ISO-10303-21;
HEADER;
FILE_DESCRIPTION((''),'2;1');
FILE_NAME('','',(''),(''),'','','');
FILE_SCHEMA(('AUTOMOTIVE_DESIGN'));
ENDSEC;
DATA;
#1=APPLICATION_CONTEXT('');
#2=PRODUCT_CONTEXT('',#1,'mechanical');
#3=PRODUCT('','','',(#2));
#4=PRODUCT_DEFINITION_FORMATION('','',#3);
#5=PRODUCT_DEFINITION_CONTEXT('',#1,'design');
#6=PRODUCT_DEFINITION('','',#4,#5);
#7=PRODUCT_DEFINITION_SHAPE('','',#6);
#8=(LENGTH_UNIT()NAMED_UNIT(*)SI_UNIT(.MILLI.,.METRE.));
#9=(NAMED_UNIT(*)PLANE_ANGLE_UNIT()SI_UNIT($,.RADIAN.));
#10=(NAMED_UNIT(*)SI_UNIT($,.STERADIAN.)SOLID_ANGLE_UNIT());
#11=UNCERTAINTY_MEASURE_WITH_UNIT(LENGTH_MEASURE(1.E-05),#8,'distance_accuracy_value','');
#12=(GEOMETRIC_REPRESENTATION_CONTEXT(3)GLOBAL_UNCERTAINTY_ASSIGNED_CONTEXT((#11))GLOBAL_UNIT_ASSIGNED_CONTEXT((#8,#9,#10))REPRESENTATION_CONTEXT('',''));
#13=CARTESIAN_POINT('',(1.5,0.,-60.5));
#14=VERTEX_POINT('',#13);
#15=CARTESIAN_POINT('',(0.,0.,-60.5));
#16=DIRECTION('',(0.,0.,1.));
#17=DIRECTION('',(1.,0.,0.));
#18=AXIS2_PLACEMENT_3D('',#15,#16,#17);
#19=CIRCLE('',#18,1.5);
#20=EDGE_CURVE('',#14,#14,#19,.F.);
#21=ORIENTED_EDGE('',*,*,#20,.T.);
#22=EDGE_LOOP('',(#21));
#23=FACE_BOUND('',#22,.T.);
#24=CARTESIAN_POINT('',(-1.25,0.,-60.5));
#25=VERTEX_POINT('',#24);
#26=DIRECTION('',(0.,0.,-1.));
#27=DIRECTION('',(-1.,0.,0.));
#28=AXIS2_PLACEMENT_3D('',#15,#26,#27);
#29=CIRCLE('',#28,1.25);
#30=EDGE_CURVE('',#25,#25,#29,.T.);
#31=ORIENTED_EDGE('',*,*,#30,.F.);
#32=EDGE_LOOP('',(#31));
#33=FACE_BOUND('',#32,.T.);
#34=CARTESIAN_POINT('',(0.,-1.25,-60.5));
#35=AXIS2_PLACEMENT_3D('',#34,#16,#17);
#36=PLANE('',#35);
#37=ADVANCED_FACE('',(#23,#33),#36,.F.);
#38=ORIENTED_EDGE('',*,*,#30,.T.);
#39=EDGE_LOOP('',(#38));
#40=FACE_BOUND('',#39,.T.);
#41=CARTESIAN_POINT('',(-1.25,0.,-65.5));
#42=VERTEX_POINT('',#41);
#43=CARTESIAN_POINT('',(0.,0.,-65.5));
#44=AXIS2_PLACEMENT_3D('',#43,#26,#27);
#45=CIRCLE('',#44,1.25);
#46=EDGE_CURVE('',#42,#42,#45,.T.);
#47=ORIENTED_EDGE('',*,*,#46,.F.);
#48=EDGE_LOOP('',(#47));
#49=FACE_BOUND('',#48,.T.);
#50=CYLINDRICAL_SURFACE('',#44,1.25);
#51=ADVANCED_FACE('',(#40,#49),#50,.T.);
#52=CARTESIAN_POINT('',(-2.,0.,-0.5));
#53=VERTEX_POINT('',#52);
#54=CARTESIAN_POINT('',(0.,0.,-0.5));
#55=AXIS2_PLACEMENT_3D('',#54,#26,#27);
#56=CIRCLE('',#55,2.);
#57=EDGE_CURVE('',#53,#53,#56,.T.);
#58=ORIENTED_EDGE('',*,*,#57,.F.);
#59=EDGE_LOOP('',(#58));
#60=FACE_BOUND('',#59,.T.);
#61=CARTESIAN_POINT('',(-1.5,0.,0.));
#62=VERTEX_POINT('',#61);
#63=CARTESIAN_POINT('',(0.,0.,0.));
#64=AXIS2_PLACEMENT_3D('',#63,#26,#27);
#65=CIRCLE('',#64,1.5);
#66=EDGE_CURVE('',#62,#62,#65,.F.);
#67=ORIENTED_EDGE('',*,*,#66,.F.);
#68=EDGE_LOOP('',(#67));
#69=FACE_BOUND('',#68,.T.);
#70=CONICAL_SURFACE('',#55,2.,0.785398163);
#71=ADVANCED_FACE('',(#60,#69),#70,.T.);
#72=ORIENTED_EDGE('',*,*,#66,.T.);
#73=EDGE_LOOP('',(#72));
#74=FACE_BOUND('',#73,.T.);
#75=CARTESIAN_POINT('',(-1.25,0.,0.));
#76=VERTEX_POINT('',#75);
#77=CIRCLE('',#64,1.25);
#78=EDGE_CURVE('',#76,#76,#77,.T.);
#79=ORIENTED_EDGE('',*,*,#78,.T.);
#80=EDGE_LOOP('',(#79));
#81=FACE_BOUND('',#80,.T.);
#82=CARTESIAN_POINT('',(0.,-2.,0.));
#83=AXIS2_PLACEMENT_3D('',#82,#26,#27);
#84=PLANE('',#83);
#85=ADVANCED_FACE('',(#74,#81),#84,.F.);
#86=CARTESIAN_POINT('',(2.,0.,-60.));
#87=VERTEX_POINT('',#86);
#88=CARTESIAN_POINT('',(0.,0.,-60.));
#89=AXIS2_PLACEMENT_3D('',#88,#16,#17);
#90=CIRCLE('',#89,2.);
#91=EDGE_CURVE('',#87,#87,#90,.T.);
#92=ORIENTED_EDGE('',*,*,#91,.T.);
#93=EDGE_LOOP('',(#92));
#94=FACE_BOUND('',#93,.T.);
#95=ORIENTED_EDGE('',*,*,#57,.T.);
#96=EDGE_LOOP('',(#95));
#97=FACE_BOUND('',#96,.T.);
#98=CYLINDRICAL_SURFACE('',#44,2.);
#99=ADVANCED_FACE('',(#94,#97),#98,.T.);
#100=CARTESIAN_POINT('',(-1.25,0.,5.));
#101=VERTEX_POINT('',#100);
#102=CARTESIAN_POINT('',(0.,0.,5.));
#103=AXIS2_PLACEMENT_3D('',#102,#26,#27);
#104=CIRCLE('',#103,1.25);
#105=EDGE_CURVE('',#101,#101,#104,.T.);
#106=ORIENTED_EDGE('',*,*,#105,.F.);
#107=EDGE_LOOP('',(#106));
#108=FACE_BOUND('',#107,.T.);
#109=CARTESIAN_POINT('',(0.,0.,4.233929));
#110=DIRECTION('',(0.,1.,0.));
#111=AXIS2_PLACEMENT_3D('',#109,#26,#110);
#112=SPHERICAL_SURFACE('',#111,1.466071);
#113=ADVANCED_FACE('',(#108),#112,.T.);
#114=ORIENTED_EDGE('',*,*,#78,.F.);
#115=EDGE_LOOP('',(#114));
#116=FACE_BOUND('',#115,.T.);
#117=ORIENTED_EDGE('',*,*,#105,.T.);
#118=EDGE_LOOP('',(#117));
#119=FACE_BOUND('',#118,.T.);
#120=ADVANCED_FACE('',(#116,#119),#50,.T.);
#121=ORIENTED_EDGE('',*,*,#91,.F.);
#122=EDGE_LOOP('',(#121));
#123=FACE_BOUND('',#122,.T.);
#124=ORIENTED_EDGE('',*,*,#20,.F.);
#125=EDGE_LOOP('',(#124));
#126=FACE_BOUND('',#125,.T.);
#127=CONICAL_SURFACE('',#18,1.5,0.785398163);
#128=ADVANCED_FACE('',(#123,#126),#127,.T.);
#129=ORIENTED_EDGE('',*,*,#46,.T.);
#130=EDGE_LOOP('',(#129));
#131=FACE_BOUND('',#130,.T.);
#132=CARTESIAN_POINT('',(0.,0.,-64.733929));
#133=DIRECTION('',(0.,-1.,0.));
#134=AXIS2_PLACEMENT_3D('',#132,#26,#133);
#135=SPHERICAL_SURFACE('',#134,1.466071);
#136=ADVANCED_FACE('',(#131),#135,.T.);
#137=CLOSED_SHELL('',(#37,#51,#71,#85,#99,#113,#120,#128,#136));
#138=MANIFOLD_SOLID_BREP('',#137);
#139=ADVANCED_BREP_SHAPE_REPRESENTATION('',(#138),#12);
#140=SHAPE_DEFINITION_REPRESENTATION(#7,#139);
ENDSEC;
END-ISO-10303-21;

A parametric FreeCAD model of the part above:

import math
import FreeCAD as App
import Part
import Sketcher

V = App.Vector
Q = App.Units.Quantity


def edges_at(feature, points):
    """Names of the edges that pass closest to the given points."""
    edges = feature.Shape.Edges
    near = lambda p: min(range(len(edges)), key=lambda i: edges[i].distToShape(Part.Vertex(*p))[0])
    return sorted({f"Edge{near(p) + 1}" for p in points})

doc = App.newDocument("Part")
body = doc.addObject("PartDesign::Body", "Body")

# Sketch on YZ plane
sketch1 = doc.addObject("Sketcher::SketchObject", "Sketch")
body.addObject(sketch1)
sketch1.AttachmentSupport = (doc.YZ_Plane, [""])
sketch1.MapMode = "FlatFace"
sketch1.addGeometry(Part.ArcOfCircle(Part.Circle(V(0, 4.2, 0), V(0, 0, 1), 1.5), math.radians(90), math.radians(148)), False)
sketch1.addGeometry(Part.LineSegment(V(-1.2, 5, 0), V(-1.2, 0, 0)), False)
sketch1.addGeometry(Part.LineSegment(V(-1.2, 0, 0), V(-2, 0, 0)), False)
sketch1.addGeometry(Part.LineSegment(V(-2, 0, 0), V(-2, -60.5, 0)), False)
sketch1.addGeometry(Part.LineSegment(V(-2, -60.5, 0), V(-1.2, -60.5, 0)), False)
sketch1.addGeometry(Part.LineSegment(V(-1.2, -60.5, 0), V(-1.2, -65.5, 0)), False)
sketch1.addGeometry(Part.ArcOfCircle(Part.Circle(V(0, -64.7, 0), V(0, 0, 1), 1.5), math.radians(-148), math.radians(-90)), False)
sketch1.addGeometry(Part.LineSegment(V(0, -66.2, 0), V(0, 5.7, 0)), False)
sketch1.addConstraint(Sketcher.Constraint("Coincident", 0, 2, 1, 1))
sketch1.addConstraint(Sketcher.Constraint("Coincident", 1, 2, 2, 1))
sketch1.addConstraint(Sketcher.Constraint("Coincident", 2, 2, 3, 1))
sketch1.addConstraint(Sketcher.Constraint("Coincident", 3, 2, 4, 1))
sketch1.addConstraint(Sketcher.Constraint("Coincident", 4, 2, 5, 1))
sketch1.addConstraint(Sketcher.Constraint("Coincident", 5, 2, 6, 1))
sketch1.addConstraint(Sketcher.Constraint("Coincident", 6, 2, 7, 1))
sketch1.addConstraint(Sketcher.Constraint("Coincident", 7, 2, 0, 1))
sketch1.addConstraint(Sketcher.Constraint("Vertical", 1))
sketch1.addConstraint(Sketcher.Constraint("Horizontal", 2))
sketch1.addConstraint(Sketcher.Constraint("Vertical", 3))
sketch1.addConstraint(Sketcher.Constraint("Horizontal", 4))
sketch1.addConstraint(Sketcher.Constraint("Vertical", 5))
sketch1.addConstraint(Sketcher.Constraint("Vertical", 7))
sketch1.addConstraint(Sketcher.Constraint("Equal", 0, 6))
sketch1.addConstraint(Sketcher.Constraint("PointOnObject", 0, 3, -2))
sketch1.addConstraint(Sketcher.Constraint("PointOnObject", 6, 3, -2))
sketch1.addConstraint(Sketcher.Constraint("PointOnObject", 1, 2, -1))
sketch1.addConstraint(Sketcher.Constraint("PointOnObject", 6, 2, -2))
sketch1.addConstraint(Sketcher.Constraint("Vertical", 1, 2, 4, 2))
sketch1.addConstraint(Sketcher.Constraint("Equal", 1, 5))
sketch1.addConstraint(Sketcher.Constraint("DistanceY", 1, 2, 1, 1, Q("5 mm")))
sketch1.addConstraint(Sketcher.Constraint("DistanceY", 3, 2, 3, 1, Q("60.5 mm")))
sketch1.addConstraint(Sketcher.Constraint("DistanceY", 7, 1, 7, 2, Q("71.9 mm")))
sketch1.addConstraint(Sketcher.Constraint("DistanceX", 2, 2, -1, 1, Q("2 mm")))
sketch1.addConstraint(Sketcher.Constraint("DistanceX", 2, 2, 2, 1, Q("0.75 mm")))
revolution = doc.addObject("PartDesign::Revolution", "Revolution")
body.addObject(revolution)
revolution.Profile = sketch1
revolution.ReferenceAxis = (sketch1, ["V_Axis"])
revolution.Angle = 360
doc.recompute()

chamfer = doc.addObject("PartDesign::Chamfer", "Chamfer")
body.addObject(chamfer)
chamfer.Base = (revolution, edges_at(revolution, [(0, 2, -60.5), (0, 2, 0)]))
chamfer.Size = 0.5

doc.recompute()
